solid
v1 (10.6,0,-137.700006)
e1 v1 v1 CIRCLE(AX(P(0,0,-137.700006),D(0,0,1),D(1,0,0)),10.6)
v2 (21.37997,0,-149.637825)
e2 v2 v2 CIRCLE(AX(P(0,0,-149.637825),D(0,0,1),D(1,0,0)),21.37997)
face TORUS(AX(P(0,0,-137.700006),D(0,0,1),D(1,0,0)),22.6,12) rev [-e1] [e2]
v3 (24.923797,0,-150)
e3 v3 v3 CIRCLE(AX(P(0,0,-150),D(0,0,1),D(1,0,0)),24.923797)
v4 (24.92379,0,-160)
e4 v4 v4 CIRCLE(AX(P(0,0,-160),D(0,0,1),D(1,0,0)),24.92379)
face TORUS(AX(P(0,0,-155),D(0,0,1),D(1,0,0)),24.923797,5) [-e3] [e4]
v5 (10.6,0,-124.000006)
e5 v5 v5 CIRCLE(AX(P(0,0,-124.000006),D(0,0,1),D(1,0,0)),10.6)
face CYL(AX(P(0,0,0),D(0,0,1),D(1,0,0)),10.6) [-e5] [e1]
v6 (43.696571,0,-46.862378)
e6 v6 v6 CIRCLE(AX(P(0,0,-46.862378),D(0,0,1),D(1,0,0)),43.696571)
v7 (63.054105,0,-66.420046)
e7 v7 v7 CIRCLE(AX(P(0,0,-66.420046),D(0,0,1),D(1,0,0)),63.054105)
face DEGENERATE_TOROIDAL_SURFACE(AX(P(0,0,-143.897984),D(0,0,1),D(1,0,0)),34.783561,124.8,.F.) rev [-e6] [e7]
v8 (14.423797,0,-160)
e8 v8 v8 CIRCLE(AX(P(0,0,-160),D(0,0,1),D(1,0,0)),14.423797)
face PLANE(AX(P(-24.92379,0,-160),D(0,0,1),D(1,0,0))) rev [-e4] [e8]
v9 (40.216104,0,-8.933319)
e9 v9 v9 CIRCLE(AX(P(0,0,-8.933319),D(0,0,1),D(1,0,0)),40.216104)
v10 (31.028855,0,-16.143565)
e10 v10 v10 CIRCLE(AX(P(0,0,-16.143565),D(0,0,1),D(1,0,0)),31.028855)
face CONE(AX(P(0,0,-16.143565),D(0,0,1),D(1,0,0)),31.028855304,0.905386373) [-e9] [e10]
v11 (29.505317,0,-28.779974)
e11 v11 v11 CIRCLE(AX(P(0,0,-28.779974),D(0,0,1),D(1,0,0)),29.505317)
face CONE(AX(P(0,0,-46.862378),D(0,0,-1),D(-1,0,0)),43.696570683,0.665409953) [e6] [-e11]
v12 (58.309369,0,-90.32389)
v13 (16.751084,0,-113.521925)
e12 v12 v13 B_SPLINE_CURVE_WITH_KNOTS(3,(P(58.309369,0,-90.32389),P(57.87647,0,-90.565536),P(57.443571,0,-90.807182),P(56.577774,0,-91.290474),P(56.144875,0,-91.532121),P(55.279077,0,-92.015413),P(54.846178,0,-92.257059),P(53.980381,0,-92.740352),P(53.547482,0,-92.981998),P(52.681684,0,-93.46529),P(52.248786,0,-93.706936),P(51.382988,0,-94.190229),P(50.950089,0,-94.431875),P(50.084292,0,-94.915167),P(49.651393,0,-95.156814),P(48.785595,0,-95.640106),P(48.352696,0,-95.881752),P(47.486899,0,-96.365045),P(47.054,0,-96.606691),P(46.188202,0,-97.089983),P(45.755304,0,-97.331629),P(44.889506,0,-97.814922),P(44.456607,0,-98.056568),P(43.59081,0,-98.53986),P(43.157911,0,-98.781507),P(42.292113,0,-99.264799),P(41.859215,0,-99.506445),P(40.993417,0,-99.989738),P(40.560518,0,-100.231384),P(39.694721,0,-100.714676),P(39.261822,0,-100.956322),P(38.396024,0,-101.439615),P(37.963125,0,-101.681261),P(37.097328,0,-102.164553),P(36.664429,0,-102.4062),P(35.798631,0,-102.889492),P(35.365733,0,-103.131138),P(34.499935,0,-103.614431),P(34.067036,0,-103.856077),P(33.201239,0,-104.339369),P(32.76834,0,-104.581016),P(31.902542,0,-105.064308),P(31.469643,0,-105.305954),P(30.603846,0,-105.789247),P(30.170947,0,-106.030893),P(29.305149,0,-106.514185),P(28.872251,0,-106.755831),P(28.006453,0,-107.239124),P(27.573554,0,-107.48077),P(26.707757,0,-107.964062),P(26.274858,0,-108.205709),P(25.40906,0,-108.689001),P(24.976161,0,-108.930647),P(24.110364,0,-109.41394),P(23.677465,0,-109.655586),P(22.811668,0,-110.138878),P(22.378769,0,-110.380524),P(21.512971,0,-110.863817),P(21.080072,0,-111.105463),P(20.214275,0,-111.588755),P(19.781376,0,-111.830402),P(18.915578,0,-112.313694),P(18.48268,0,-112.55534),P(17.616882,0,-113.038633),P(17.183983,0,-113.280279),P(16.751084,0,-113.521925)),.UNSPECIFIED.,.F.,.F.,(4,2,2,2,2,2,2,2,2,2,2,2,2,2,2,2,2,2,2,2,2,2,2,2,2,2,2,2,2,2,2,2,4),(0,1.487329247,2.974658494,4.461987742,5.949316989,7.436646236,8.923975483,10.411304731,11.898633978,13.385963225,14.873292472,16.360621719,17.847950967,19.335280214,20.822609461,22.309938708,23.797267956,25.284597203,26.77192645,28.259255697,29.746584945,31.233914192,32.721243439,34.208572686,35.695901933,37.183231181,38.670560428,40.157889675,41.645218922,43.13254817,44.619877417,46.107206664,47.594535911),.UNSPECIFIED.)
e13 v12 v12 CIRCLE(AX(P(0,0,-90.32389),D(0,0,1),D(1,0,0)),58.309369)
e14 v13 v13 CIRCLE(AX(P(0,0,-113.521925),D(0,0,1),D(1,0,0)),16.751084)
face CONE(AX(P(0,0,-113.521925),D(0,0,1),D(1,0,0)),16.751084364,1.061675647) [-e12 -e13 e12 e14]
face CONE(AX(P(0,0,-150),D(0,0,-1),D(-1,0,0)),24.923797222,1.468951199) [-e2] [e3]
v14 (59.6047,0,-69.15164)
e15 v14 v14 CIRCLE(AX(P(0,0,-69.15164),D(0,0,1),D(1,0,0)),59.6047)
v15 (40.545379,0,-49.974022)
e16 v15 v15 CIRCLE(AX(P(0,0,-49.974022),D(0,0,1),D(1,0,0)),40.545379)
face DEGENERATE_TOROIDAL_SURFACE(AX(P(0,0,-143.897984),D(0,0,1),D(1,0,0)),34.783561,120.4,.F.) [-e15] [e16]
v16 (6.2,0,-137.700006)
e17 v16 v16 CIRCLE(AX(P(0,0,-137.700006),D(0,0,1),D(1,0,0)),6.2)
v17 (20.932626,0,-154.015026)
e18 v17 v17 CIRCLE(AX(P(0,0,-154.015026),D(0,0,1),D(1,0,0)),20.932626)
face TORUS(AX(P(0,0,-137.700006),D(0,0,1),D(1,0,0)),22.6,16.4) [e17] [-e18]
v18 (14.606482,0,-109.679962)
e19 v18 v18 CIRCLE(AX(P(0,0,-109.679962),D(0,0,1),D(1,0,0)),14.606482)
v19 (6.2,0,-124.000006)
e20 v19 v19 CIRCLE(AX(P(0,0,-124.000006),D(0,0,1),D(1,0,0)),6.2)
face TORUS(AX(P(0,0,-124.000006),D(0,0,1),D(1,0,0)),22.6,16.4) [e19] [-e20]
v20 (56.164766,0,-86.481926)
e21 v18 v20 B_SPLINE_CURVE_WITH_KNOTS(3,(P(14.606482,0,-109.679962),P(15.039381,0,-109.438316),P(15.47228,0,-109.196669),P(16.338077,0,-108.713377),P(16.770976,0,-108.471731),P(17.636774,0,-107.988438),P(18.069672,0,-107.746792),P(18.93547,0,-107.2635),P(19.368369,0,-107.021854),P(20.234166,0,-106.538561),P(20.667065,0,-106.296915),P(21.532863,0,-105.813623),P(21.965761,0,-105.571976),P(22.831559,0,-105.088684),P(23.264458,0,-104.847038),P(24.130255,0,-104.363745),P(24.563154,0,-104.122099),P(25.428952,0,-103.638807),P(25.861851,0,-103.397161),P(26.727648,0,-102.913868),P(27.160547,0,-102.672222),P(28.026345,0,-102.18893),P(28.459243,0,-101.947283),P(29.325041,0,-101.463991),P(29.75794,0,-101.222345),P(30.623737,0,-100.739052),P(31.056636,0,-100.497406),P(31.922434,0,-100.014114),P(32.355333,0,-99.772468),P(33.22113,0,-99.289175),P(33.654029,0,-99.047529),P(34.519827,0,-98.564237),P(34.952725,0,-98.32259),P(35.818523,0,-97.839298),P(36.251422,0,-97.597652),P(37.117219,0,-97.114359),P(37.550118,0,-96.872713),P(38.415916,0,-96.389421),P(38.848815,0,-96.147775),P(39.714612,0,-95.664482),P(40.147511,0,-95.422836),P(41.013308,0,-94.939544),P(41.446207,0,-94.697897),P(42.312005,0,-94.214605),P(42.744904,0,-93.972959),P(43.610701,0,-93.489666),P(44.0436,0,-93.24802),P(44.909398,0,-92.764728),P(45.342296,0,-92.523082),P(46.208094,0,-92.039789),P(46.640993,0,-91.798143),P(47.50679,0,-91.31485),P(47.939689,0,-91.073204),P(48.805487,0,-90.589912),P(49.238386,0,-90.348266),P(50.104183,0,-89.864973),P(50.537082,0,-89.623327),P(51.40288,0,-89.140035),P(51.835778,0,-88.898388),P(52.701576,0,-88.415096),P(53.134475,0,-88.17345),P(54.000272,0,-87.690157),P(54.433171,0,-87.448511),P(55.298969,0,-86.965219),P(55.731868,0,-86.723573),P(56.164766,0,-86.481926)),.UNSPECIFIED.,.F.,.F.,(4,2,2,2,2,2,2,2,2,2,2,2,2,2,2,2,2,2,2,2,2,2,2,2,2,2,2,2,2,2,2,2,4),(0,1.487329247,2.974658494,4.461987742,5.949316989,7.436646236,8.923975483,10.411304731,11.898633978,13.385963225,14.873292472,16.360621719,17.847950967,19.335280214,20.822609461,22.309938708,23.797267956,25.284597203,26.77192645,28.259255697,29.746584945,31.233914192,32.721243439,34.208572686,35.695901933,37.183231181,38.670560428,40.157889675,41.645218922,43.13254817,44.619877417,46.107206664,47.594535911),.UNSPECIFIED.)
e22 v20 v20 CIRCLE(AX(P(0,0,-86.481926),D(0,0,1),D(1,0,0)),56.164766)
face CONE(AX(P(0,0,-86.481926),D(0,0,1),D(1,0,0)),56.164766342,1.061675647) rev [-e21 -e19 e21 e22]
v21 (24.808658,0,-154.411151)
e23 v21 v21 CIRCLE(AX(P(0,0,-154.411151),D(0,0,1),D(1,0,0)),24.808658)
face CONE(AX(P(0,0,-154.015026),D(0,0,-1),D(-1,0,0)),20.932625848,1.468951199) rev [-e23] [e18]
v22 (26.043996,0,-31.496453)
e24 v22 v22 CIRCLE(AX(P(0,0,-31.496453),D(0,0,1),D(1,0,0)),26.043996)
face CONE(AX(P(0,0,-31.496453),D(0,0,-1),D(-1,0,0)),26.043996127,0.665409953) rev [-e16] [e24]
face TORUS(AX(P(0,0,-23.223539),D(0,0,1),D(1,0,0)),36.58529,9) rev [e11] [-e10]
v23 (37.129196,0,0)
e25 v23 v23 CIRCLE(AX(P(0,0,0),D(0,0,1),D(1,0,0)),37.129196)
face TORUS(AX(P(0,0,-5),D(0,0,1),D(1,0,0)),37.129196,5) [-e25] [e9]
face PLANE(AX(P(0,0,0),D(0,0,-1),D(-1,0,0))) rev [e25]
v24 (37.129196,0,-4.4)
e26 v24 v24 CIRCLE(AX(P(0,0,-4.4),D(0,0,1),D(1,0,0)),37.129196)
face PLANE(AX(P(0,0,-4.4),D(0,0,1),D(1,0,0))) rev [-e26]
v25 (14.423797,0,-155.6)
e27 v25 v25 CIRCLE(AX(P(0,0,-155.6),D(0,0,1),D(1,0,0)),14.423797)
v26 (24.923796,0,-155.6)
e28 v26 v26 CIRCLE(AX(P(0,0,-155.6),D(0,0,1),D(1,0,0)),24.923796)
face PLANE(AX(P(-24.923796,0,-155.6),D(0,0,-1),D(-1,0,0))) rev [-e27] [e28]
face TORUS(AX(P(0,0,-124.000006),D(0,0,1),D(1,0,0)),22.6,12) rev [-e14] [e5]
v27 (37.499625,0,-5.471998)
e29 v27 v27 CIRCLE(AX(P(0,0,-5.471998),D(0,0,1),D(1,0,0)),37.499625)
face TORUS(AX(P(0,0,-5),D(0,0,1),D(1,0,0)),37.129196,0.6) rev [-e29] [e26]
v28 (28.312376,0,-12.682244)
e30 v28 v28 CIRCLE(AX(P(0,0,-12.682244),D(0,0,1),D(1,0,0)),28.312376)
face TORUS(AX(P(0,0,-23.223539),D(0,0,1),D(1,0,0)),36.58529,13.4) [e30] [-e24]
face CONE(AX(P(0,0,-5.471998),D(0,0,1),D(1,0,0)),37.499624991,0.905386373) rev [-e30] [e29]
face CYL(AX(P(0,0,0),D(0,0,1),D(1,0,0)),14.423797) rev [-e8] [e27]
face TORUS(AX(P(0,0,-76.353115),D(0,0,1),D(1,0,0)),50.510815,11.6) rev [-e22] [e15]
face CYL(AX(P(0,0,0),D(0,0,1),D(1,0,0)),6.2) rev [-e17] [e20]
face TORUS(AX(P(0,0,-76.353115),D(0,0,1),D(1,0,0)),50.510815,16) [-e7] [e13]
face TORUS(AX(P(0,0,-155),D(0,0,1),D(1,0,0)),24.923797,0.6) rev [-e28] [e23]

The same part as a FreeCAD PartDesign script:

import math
import FreeCAD as App
import Part
import Sketcher
from FreeCAD import Vector
Q = App.Units.Quantity

doc = App.newDocument("Part")
body = doc.addObject("PartDesign::Body", "Body")

sketch1 = body.newObject("Sketcher::SketchObject", "Sketch")
sketch1.AttachmentSupport = (doc.getObject("XZ_Plane"), [""])
sketch1.MapMode = "FlatFace"
sketch1.addGeometry([
    Part.LineSegment(Vector(-37.129196, 0, 0), Vector(0, 0, 0)),
    Part.LineSegment(Vector(0, 0, 0), Vector(0, -4.4, 0)),
    Part.LineSegment(Vector(0, -4.4, 0), Vector(-37.129196, -4.4, 0)),
    Part.ArcOfCircle(Part.Circle(Vector(-37.129196, -5, 0), Vector(0, 0, 1), 0.6), math.radians(90), math.radians(231.874818)),
    Part.LineSegment(Vector(-37.499625, -5.471998, 0), Vector(-28.312376, -12.682244, 0)),
    Part.ArcOfCircle(Part.Circle(Vector(-36.58529, -23.223539, 0), Vector(0, 0, 1), 13.4), math.radians(-38.125182), math.radians(51.874818)),
    Part.LineSegment(Vector(-26.043996, -31.496453, 0), Vector(-40.545379, -49.974022, 0)),
    Part.ArcOfCircle(Part.Circle(Vector(34.783561, -143.897984, 0), Vector(0, 0, 1), 120.4), math.radians(128.730327), math.radians(141.624193)),
    Part.ArcOfCircle(Part.Circle(Vector(-50.510815, -76.353115, 0), Vector(0, 0, 1), 11.6), math.radians(141.624193), math.radians(240.829534)),
    Part.LineSegment(Vector(-56.164766, -86.481926, 0), Vector(-14.606482, -109.679962, 0)),
    Part.ArcOfCircle(Part.Circle(Vector(-22.6, -124.000006, 0), Vector(0, 0, 1), 16.4), math.radians(0), math.radians(60.829534)),
    Part.LineSegment(Vector(-6.2, -124.000006, 0), Vector(-6.2, -137.700006, 0)),
    Part.ArcOfCircle(Part.Circle(Vector(-22.6, -137.700006, 0), Vector(0, 0, 1), 16.4), math.radians(-84.164704), math.radians(0)),
    Part.LineSegment(Vector(-20.932626, -154.015026, 0), Vector(-24.808658, -154.411151, 0)),
    Part.ArcOfCircle(Part.Circle(Vector(-24.923797, -155, 0), Vector(0, 0, 1), 0.6), math.radians(78.936341), math.radians(270.000088)),
    Part.LineSegment(Vector(-24.923796, -155.6, 0), Vector(-14.423797, -155.6, 0)),
    Part.LineSegment(Vector(-14.423797, -155.6, 0), Vector(-14.423797, -160, 0)),
    Part.LineSegment(Vector(-14.423797, -160, 0), Vector(-24.92379, -160, 0)),
    Part.ArcOfCircle(Part.Circle(Vector(-24.923797, -155, 0), Vector(0, 0, 1), 5), math.radians(90), math.radians(270.000088)),
    Part.LineSegment(Vector(-24.923797, -150, 0), Vector(-21.37997, -149.637825, 0)),
    Part.ArcOfCircle(Part.Circle(Vector(-22.6, -137.700006, 0), Vector(0, 0, 1), 12), math.radians(-84.164704), math.radians(0)),
    Part.LineSegment(Vector(-10.6, -137.700006, 0), Vector(-10.6, -124.000006, 0)),
    Part.ArcOfCircle(Part.Circle(Vector(-22.6, -124.000006, 0), Vector(0, 0, 1), 12), math.radians(0), math.radians(60.829534)),
    Part.LineSegment(Vector(-16.751084, -113.521925, 0), Vector(-58.309369, -90.32389, 0)),
    Part.ArcOfCircle(Part.Circle(Vector(-50.510815, -76.353115, 0), Vector(0, 0, 1), 16), math.radians(141.624193), math.radians(240.829534)),
    Part.ArcOfCircle(Part.Circle(Vector(34.783562, -143.897984, 0), Vector(0, 0, 1), 124.8), math.radians(128.965123), math.radians(141.624193)),
    Part.LineSegment(Vector(-43.696571, -46.862378, 0), Vector(-29.505317, -28.779974, 0)),
    Part.ArcOfCircle(Part.Circle(Vector(-36.58529, -23.223539, 0), Vector(0, 0, 1), 9), math.radians(-38.125182), math.radians(51.874818)),
    Part.LineSegment(Vector(-31.028855, -16.143565, 0), Vector(-40.216104, -8.933319, 0)),
    Part.ArcOfCircle(Part.Circle(Vector(-37.129196, -5, 0), Vector(0, 0, 1), 5), math.radians(90), math.radians(231.874818)),
], False)
sketch1.addConstraint([
    Sketcher.Constraint("Coincident", 0, 2, 1, 1),
    Sketcher.Constraint("Coincident", 1, 2, 2, 1),
    Sketcher.Constraint("Coincident", 2, 2, 3, 1),
    Sketcher.Constraint("Coincident", 3, 2, 4, 1),
    Sketcher.Constraint("Coincident", 4, 2, 5, 2),
    Sketcher.Constraint("Coincident", 5, 1, 6, 1),
    Sketcher.Constraint("Coincident", 6, 2, 7, 1),
    Sketcher.Constraint("Coincident", 7, 2, 8, 1),
    Sketcher.Constraint("Coincident", 8, 2, 9, 1),
    Sketcher.Constraint("Coincident", 9, 2, 10, 2),
    Sketcher.Constraint("Coincident", 10, 1, 11, 1),
    Sketcher.Constraint("Coincident", 11, 2, 12, 2),
    Sketcher.Constraint("Coincident", 12, 1, 13, 1),
    Sketcher.Constraint("Coincident", 13, 2, 14, 1),
    Sketcher.Constraint("Coincident", 14, 2, 15, 1),
    Sketcher.Constraint("Coincident", 15, 2, 16, 1),
    Sketcher.Constraint("Coincident", 16, 2, 17, 1),
    Sketcher.Constraint("Coincident", 17, 2, 18, 2),
    Sketcher.Constraint("Coincident", 18, 1, 19, 1),
    Sketcher.Constraint("Coincident", 19, 2, 20, 1),
    Sketcher.Constraint("Coincident", 20, 2, 21, 1),
    Sketcher.Constraint("Coincident", 21, 2, 22, 1),
    Sketcher.Constraint("Coincident", 22, 2, 23, 1),
    Sketcher.Constraint("Coincident", 23, 2, 24, 2),
    Sketcher.Constraint("Coincident", 24, 1, 25, 2),
    Sketcher.Constraint("Coincident", 25, 1, 26, 1),
    Sketcher.Constraint("Coincident", 26, 2, 27, 1),
    Sketcher.Constraint("Coincident", 27, 2, 28, 1),
    Sketcher.Constraint("Coincident", 28, 2, 29, 2),
    Sketcher.Constraint("Coincident", 29, 1, 0, 1),
    Sketcher.Constraint("Horizontal", 0),
    Sketcher.Constraint("Vertical", 1),
    Sketcher.Constraint("Horizontal", 2),
    Sketcher.Constraint("Vertical", 11),
    Sketcher.Constraint("Horizontal", 15),
    Sketcher.Constraint("Vertical", 16),
    Sketcher.Constraint("Horizontal", 17),
    Sketcher.Constraint("Vertical", 21),
    Sketcher.Constraint("Coincident", 0, 2, -1, 1),
    Sketcher.Constraint("Coincident", 18, 3, 14, 3),
    Sketcher.Constraint("Coincident", 20, 3, 12, 3),
    Sketcher.Constraint("Coincident", 22, 3, 10, 3),
    Sketcher.Constraint("Coincident", 24, 3, 8, 3),
    Sketcher.Constraint("Coincident", 25, 3, 7, 3),
    Sketcher.Constraint("Coincident", 27, 3, 5, 3),
    Sketcher.Constraint("Coincident", 29, 3, 3, 3),
    Sketcher.Constraint("Radius", 18, Q("5 mm")),
    Sketcher.Constraint("Radius", 20, Q("12 mm")),
    Sketcher.Constraint("Radius", 22, Q("12 mm")),
    Sketcher.Constraint("Radius", 24, Q("16 mm")),
    Sketcher.Constraint("Radius", 27, Q("9 mm")),
    Sketcher.Constraint("Radius", 29, Q("5 mm")),
    Sketcher.Constraint("Radius", 3, Q("0.6 mm")),
    Sketcher.Constraint("Radius", 5, Q("13.4 mm")),
    Sketcher.Constraint("Radius", 7, Q("120.4 mm")),
    Sketcher.Constraint("Radius", 8, Q("11.6 mm")),
    Sketcher.Constraint("Radius", 10, Q("16.4 mm")),
    Sketcher.Constraint("Radius", 14, Q("0.6 mm")),
    Sketcher.Constraint("DistanceX", 15, 1, 15, 2, Q("10.499999 mm")),
    Sketcher.Constraint("DistanceY", 11, 2, 11, 1, Q("13.7 mm")),
    Sketcher.Constraint("DistanceY", 21, 1, 21, 2, Q("13.7 mm")),
    Sketcher.Constraint("DistanceY", 14, 3, -1, 1, Q("155 mm")),
    Sketcher.Constraint("DistanceX", 10, 3, -1, 1, Q("22.6 mm")),
    Sketcher.Constraint("DistanceY", 12, 3, 10, 3, Q("13.7 mm")),
    Sketcher.Constraint("DistanceY", 12, 3, 10, 1, Q("13.7 mm")),
    Sketcher.Constraint("DistanceX", 14, 3, 15, 2, Q("10.5 mm")),
    Sketcher.Constraint("DistanceY", 20, 2, 10, 1, Q("13.7 mm")),
    Sketcher.Constraint("DistanceY", 3, 2, -1, 1, Q("5.471998 mm")),
    Sketcher.Constraint("DistanceX", 7, 2, -1, 1, Q("59.6047 mm")),
    Sketcher.Constraint("DistanceX", 3, 3, 5, 1, Q("11.0852 mm")),
    Sketcher.Constraint("DistanceY", 7, 2, 27, 3, Q("45.928101 mm")),
    Sketcher.Constraint("DistanceY", 12, 1, 19, 2, Q("4.3772 mm")),
    Sketcher.Constraint("Distance", 4, Q("11.67875 mm")),
    Sketcher.Constraint("Distance", 6, Q("23.488522 mm")),
    Sketcher.Constraint("Distance", 13, Q("3.896221 mm")),
    Sketcher.Constraint("Distance", 28, Q("11.67875 mm")),
    Sketcher.Constraint("DistanceX", 0, 1, 0, 2, Q("37.129196 mm")),
    Sketcher.Constraint("DistanceX", 2, 2, 2, 1, Q("37.129196 mm")),
    Sketcher.Constraint("DistanceX", 17, 2, 17, 1, Q("10.499992 mm")),
    Sketcher.Constraint("DistanceX", 5, 3, -1, 1, Q("36.58529 mm")),
    Sketcher.Constraint("DistanceY", 5, 3, -1, 1, Q("23.223539 mm")),
    Sketcher.Constraint("DistanceX", -1, 1, 7, 3, Q("34.783561 mm")),
    Sketcher.Constraint("DistanceX", 6, 2, -1, 1, Q("40.545379 mm")),
    Sketcher.Constraint("DistanceX", 9, 2, -1, 1, Q("14.606482 mm")),
    Sketcher.Constraint("DistanceY", 9, 2, -1, 1, Q("109.679962 mm")),
    Sketcher.Constraint("DistanceY", 13, 2, -1, 1, Q("154.411151 mm")),
    Sketcher.Constraint("DistanceX", 17, 2, -1, 1, Q("24.92379 mm")),
    Sketcher.Constraint("DistanceX", 23, 2, -1, 1, Q("58.309369 mm")),
    Sketcher.Constraint("DistanceY", 23, 2, -1, 1, Q("90.32389 mm")),
    Sketcher.Constraint("DistanceX", 25, 1, -1, 1, Q("43.696571 mm")),
    Sketcher.Constraint("DistanceY", 28, 2, -1, 1, Q("8.933319 mm")),
    Sketcher.Constraint("DistanceX", 8, 2, 24, 3, Q("5.653952 mm")),
    Sketcher.Constraint("DistanceX", 18, 1, 13, 2, Q("0.11514 mm")),
    Sketcher.Constraint("DistanceY", 22, 3, 22, 2, Q("10.478081 mm")),
    Sketcher.Constraint("DistanceX", 24, 1, 24, 3, Q("12.543291 mm")),
    Sketcher.Constraint("DistanceX", 26, 2, 5, 1, Q("3.461321 mm")),
])
revolution = body.newObject("PartDesign::Revolution", "Revolution")
revolution.Profile = sketch1
revolution.ReferenceAxis = (sketch1, ["V_Axis"])
revolution.Angle = 360

doc.recompute()
